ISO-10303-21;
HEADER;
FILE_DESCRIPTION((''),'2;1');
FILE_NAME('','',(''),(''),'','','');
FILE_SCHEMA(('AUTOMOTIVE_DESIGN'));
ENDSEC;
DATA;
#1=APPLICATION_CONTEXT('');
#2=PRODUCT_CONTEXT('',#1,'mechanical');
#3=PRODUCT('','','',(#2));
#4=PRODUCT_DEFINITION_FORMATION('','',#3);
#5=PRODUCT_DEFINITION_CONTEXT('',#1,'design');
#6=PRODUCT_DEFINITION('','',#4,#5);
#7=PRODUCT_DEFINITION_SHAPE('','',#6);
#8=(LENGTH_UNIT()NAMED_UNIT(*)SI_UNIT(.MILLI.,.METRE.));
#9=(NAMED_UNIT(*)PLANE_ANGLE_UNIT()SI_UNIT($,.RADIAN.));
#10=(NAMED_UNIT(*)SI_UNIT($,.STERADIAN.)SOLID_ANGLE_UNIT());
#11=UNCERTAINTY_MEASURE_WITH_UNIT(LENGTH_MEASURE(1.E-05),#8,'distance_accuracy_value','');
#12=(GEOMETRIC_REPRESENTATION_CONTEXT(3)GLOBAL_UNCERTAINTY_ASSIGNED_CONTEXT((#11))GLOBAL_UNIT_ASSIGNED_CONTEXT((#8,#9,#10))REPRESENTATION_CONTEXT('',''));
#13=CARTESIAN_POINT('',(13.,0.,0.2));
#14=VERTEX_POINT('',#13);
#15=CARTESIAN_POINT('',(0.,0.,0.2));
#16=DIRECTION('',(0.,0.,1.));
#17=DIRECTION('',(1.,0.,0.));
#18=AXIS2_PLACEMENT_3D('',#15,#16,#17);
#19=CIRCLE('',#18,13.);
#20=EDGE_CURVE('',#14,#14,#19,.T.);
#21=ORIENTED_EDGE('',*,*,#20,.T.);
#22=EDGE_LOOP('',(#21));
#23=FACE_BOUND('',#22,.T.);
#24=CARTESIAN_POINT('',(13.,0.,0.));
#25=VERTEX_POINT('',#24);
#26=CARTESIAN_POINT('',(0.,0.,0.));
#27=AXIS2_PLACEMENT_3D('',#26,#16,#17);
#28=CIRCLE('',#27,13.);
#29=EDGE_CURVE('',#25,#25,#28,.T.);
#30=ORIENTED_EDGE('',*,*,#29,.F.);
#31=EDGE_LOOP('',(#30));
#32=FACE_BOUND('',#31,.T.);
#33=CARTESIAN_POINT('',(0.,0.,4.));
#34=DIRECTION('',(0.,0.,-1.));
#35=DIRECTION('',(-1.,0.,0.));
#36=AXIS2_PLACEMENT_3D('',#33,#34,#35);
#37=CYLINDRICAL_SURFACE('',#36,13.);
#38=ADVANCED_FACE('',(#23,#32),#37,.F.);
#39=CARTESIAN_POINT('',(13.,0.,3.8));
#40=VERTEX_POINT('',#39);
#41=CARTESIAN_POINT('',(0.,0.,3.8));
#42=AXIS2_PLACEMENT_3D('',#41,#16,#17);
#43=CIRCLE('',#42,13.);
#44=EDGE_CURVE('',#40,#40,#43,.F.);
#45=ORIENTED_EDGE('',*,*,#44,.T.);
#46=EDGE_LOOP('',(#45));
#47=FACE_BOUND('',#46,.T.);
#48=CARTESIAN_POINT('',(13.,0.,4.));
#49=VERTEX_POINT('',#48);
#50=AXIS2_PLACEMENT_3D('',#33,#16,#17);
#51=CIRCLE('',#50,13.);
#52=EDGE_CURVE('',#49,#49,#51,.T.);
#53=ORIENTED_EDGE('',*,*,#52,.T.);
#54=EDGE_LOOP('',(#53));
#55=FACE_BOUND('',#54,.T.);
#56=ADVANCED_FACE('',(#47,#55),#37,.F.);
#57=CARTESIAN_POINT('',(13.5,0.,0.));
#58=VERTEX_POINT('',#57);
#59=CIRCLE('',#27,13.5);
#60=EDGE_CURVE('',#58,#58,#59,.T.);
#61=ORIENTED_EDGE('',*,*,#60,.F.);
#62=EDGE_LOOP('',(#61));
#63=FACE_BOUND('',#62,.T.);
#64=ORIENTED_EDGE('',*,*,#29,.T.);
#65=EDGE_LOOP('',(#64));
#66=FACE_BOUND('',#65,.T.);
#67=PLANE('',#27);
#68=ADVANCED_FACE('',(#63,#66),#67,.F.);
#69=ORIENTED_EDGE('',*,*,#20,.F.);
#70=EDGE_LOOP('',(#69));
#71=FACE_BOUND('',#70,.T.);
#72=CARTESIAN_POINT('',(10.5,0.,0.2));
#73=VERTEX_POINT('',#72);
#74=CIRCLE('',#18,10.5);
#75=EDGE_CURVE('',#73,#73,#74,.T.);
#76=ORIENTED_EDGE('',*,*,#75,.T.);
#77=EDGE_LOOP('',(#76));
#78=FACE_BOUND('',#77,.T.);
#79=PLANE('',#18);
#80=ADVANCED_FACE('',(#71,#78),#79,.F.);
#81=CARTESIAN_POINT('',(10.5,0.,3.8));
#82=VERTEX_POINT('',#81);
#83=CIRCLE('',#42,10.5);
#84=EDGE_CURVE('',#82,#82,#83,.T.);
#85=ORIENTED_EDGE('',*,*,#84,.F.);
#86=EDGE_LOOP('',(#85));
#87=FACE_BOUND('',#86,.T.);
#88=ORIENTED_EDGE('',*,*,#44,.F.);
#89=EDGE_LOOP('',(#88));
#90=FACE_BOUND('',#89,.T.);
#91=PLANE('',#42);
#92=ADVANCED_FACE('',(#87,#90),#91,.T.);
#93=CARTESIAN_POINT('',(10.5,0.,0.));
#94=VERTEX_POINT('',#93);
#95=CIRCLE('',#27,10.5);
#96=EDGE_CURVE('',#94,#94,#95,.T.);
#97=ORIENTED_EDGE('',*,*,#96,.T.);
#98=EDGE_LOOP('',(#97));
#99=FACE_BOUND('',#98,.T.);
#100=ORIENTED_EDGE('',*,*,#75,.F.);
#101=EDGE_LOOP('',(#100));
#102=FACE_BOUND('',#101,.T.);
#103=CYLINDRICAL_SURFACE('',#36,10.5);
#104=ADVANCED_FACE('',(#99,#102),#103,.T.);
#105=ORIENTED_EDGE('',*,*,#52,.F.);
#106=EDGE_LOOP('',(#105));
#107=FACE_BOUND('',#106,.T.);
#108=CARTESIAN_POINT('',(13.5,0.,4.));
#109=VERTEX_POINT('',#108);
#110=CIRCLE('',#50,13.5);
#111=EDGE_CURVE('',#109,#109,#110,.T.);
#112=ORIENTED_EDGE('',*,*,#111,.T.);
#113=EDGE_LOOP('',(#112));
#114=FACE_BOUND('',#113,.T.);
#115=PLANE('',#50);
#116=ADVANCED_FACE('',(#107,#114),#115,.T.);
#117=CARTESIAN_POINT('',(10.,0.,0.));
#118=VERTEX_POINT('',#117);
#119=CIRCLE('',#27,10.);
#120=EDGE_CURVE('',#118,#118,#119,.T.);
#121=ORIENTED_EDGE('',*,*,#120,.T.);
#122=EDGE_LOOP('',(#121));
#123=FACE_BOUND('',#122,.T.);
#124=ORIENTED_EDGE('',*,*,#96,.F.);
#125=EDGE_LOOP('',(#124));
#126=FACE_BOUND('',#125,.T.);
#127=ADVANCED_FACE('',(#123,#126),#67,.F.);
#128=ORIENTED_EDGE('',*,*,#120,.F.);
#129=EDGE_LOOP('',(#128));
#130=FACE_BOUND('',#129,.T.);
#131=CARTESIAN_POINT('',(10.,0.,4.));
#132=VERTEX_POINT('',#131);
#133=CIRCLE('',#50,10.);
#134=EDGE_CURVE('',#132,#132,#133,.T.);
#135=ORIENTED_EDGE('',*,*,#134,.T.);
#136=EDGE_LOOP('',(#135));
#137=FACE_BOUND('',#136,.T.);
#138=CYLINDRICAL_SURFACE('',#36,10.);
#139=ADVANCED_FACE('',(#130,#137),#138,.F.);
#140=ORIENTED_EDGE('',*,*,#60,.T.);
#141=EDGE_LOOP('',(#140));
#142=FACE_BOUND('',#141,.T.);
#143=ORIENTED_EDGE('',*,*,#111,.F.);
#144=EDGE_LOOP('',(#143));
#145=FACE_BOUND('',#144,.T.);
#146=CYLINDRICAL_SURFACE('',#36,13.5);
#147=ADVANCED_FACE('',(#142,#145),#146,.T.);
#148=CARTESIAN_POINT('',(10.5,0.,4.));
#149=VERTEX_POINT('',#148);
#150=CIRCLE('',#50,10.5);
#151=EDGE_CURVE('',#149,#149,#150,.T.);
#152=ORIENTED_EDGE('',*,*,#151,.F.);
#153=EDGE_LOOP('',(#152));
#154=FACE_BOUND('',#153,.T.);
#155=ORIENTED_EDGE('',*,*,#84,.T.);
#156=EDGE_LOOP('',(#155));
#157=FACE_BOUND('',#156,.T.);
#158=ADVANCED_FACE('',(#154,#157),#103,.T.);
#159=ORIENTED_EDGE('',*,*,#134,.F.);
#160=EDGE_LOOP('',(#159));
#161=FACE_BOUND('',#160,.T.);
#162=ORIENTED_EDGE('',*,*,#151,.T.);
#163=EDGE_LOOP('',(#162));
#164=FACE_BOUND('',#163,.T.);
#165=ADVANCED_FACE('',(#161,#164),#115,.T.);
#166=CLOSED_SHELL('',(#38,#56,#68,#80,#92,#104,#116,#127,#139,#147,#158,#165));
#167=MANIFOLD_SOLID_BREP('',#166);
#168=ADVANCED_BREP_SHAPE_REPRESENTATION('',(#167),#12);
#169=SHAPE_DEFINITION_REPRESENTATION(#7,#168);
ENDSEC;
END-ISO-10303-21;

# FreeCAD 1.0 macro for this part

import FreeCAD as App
import Part
import Sketcher
Q = App.Units.Quantity

doc = App.newDocument("Part")
body = doc.addObject("PartDesign::Body", "Body")

# Sketch on XY plane
sketch1 = body.newObject("Sketcher::SketchObject", "Sketch")
sketch1.AttachmentSupport = (doc.getObject("XY_Plane"), [""])
sketch1.MapMode = "FlatFace"
sketch1.addGeometry([
    Part.Circle(App.Vector(0, 0, 0), App.Vector(0, 0, 1), 10),
    Part.Circle(App.Vector(0, 0, 0), App.Vector(0, 0, 1), 10),
], False)
sketch1.addConstraint([
    Sketcher.Constraint("Coincident", 0, 3, -1, 1),
    Sketcher.Constraint("Coincident", 1, 3, -1, 1),
    Sketcher.Constraint("Diameter", 0, Q("21 mm")),
    Sketcher.Constraint("Diameter", 1, Q("20 mm")),
])
pad1 = body.newObject("PartDesign::Pad", "Pad")
pad1.Profile = sketch1
pad1.Length = 4
body2 = doc.addObject("PartDesign::Body", "Body001")

# Sketch on XY plane
sketch2 = body2.newObject("Sketcher::SketchObject", "Sketch001")
sketch2.AttachmentSupport = (doc.getObject("XY_Plane001"), [""])
sketch2.MapMode = "FlatFace"
sketch2.addGeometry([
    Part.Circle(App.Vector(0, 0, 0), App.Vector(0, 0, 1), 14),
    Part.Circle(App.Vector(0, 0, 0), App.Vector(0, 0, 1), 13),
], False)
sketch2.addConstraint([
    Sketcher.Constraint("Coincident", 0, 3, -1, 1),
    Sketcher.Constraint("Coincident", 1, 3, -1, 1),
    Sketcher.Constraint("Diameter", 0, Q("27 mm")),
    Sketcher.Constraint("Diameter", 1, Q("26 mm")),
])
pad2 = body2.newObject("PartDesign::Pad", "Pad001")
pad2.Profile = sketch2
pad2.Length = 4
body.AllowCompound = True
doc.recompute()

boolean = body.newObject("PartDesign::Boolean", "Boolean")
boolean.Type = "Fuse"
boolean.addObjects([body2])

# Sketch on XY plane
sketch3 = body.newObject("Sketcher::SketchObject", "Sketch002")
sketch3.AttachmentSupport = (doc.getObject("XY_Plane"), [""])
sketch3.MapMode = "FlatFace"
sketch3.AttachmentOffset = App.Placement(App.Vector(0, 0, 0.2), App.Rotation())
sketch3.addGeometry([
    Part.Circle(App.Vector(0, 0, 0), App.Vector(0, 0, 1), 13),
    Part.Circle(App.Vector(0, 0, 0), App.Vector(0, 0, 1), 10),
], False)
sketch3.addConstraint([
    Sketcher.Constraint("Coincident", 0, 3, -1, 1),
    Sketcher.Constraint("Coincident", 1, 3, -1, 1),
    Sketcher.Constraint("Diameter", 0, Q("26 mm")),
    Sketcher.Constraint("Diameter", 1, Q("21 mm")),
])
pad3 = body.newObject("PartDesign::Pad", "Pad002")
pad3.Profile = sketch3
pad3.Length = 3.6

doc.recompute()
